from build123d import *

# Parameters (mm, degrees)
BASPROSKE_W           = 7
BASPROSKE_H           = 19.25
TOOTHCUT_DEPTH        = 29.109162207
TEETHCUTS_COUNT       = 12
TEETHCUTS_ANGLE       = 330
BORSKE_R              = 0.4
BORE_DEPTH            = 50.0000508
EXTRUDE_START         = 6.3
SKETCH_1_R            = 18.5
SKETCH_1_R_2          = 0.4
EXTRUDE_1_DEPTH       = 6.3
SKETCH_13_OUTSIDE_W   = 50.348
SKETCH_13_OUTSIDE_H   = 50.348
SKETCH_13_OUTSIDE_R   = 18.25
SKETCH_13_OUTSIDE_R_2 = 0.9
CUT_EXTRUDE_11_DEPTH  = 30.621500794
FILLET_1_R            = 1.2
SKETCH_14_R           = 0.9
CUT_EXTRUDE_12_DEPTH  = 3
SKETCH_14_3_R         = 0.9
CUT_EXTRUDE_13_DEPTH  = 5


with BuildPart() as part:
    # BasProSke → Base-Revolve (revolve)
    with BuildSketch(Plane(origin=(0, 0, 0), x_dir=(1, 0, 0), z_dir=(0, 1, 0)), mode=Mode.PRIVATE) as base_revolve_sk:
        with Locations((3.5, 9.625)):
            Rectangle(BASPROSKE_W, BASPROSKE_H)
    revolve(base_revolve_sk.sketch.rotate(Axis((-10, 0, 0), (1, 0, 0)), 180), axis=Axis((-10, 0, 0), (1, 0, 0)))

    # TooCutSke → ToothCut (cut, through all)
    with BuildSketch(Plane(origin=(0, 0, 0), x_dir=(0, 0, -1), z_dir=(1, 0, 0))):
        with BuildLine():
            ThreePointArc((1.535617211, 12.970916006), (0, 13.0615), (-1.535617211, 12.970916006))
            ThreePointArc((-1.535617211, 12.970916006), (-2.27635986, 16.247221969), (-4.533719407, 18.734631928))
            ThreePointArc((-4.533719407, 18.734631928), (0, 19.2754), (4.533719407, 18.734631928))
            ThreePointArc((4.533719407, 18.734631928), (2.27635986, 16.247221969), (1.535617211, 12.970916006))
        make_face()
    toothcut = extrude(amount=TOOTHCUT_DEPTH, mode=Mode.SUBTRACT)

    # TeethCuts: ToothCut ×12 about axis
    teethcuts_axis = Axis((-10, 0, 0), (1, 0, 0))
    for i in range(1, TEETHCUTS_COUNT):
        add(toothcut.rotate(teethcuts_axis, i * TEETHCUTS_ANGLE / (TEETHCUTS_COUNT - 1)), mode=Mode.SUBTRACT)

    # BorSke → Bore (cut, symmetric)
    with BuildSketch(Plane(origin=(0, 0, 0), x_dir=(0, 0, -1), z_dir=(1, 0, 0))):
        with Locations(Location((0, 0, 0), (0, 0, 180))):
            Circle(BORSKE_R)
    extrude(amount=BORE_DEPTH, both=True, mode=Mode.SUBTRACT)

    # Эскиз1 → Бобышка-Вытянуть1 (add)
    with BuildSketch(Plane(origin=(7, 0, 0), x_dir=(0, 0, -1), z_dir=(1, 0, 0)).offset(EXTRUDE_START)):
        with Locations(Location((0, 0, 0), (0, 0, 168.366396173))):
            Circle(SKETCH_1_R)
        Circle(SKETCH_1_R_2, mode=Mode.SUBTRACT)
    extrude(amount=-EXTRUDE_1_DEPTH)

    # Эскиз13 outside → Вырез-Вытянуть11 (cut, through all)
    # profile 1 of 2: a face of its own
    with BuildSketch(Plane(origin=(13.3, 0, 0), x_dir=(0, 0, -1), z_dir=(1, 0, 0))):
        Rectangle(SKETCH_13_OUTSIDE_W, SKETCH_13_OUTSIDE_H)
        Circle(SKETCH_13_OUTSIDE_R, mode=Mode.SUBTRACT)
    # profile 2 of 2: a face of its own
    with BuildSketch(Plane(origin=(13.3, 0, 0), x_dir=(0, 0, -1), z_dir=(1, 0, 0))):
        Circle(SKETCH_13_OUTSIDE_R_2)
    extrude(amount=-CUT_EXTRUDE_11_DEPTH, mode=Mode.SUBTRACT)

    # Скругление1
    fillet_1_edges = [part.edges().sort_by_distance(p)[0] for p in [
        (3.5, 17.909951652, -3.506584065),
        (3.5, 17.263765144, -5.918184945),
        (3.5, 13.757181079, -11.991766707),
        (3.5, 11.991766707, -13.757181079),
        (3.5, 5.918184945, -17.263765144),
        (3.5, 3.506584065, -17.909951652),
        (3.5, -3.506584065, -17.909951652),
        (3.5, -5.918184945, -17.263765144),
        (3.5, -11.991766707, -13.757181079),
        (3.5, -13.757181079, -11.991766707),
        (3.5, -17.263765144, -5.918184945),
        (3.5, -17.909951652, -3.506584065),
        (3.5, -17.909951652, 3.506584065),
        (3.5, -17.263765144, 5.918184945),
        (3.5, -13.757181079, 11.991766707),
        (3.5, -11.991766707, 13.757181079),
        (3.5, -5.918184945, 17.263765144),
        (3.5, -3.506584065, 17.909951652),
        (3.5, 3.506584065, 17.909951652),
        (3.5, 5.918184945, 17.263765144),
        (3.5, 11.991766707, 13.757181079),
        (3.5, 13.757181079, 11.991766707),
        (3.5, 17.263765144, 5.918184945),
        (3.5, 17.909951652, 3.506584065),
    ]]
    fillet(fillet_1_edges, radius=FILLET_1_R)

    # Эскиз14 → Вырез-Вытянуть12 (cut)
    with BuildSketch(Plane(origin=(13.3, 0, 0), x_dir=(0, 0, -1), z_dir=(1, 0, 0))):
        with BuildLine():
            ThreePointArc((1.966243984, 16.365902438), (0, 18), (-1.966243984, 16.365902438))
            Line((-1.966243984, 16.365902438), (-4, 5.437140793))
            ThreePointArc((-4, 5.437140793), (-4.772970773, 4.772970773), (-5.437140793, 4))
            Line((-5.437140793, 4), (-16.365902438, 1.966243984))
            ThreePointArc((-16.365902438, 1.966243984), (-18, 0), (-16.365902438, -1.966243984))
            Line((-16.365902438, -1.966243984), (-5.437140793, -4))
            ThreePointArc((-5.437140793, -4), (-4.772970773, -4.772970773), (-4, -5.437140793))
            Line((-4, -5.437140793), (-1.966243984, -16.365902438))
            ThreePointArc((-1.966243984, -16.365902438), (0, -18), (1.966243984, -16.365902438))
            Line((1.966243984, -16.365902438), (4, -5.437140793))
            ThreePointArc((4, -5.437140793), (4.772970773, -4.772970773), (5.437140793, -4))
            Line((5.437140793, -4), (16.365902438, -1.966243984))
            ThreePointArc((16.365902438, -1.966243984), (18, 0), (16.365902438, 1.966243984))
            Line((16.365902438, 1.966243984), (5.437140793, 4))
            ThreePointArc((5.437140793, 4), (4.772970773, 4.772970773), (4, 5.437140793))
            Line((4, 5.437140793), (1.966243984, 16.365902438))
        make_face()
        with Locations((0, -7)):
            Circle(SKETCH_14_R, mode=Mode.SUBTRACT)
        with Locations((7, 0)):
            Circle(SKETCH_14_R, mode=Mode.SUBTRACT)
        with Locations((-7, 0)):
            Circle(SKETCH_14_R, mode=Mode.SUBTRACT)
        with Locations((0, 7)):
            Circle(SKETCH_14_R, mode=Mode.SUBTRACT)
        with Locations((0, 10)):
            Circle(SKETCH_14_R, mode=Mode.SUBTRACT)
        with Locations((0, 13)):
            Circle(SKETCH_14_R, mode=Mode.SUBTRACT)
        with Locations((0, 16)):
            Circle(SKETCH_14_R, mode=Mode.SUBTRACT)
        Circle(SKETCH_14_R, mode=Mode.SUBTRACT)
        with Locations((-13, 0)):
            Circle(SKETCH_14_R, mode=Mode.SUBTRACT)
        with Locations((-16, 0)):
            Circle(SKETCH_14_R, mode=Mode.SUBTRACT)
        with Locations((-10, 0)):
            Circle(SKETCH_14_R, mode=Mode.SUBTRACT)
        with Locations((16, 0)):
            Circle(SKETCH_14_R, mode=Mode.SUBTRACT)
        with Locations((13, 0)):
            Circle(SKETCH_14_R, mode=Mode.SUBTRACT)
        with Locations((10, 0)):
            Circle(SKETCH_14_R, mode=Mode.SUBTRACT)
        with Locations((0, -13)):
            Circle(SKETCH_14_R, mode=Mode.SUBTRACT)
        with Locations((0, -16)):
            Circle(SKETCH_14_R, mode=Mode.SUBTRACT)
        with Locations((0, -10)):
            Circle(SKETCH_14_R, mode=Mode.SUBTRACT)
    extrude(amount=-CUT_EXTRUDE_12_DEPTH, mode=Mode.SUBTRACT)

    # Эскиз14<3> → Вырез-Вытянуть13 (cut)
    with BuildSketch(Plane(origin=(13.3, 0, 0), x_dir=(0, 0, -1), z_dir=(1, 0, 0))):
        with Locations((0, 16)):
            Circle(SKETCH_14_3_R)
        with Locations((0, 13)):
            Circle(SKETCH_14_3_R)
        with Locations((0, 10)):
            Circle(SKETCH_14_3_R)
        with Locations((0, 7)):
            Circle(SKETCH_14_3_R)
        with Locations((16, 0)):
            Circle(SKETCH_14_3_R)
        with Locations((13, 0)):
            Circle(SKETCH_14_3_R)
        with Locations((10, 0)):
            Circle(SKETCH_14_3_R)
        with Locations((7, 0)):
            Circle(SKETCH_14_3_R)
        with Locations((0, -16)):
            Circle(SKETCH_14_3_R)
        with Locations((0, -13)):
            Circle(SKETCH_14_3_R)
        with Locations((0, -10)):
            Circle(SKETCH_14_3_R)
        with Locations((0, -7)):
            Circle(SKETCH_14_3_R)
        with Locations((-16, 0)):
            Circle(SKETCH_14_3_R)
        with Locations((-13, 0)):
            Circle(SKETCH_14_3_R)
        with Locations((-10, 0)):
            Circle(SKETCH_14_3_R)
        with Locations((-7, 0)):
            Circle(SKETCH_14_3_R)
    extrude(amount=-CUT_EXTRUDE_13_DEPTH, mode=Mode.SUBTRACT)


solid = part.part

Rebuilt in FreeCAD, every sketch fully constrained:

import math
import FreeCAD as App
import Part
import Sketcher
from FreeCAD import Vector


def edges_at(feature, points):
    """Names of the edges that pass closest to the given points."""
    edges = feature.Shape.Edges
    near = lambda p: min(range(len(edges)), key=lambda i: edges[i].distToShape(Part.Vertex(*p))[0])
    return sorted({f"Edge{near(p) + 1}" for p in points})

doc = App.newDocument("Part")
params = doc.addObject("Spreadsheet::Sheet", "Params")
for row, (alias, value) in enumerate([
    ("sketch1_width", "7 mm"),
    ("sketch1_height", "19.25 mm"),
    ("revolution_angle", "360 deg"),
    ("sketch2_radius", "6.6 mm"),
    ("sketch3_diameter", "0.8 mm"),
    ("pocket2_length", "100.000102 mm"),
    ("sketch4_diameter", "37 mm"),
    ("sketch4_diameter2", "0.8 mm"),
    ("pad1_length", "6.3 mm"),
    ("sketch5_diameter", "36.5 mm"),
    ("sketch5_diameter2", "1.8 mm"),
    ("pocket3_length", "30.621501 mm"),
    ("fillet_radius", "1.2 mm"),
    ("sketch6_radius", "2 mm"),
    ("sketch6_diameter", "1.8 mm"),
    ("sketch6_radius2", "6.75 mm"),
    ("pocket4_length", "3 mm"),
    ("sketch7_diameter", "1.8 mm"),
    ("pocket5_length", "5 mm"),
], start=1):
    params.set(f"A{row}", alias)
    params.set(f"B{row}", "=" + value)
    params.setAlias(f"B{row}", alias)

body = doc.addObject("PartDesign::Body", "Body")

# Sketch on XZ plane
sketch1 = body.newObject("Sketcher::SketchObject", "Sketch")
sketch1.AttachmentSupport = (doc.getObject("XZ_Plane"), [""])
sketch1.MapMode = "FlatFace"
sketch1.addGeometry([
    Part.LineSegment(Vector(0, -19, 0), Vector(0, 0, 0)),
    Part.LineSegment(Vector(0, 0, 0), Vector(7, 0, 0)),
    Part.LineSegment(Vector(7, 0, 0), Vector(7, -19, 0)),
    Part.LineSegment(Vector(7, -19, 0), Vector(0, -19, 0)),
], False)
sketch1.addConstraint([
    Sketcher.Constraint("Coincident", 0, 2, 1, 1),
    Sketcher.Constraint("Coincident", 1, 2, 2, 1),
    Sketcher.Constraint("Coincident", 2, 2, 3, 1),
    Sketcher.Constraint("Coincident", 3, 2, 0, 1),
    Sketcher.Constraint("Vertical", 0),
    Sketcher.Constraint("Horizontal", 1),
    Sketcher.Constraint("Vertical", 2),
    Sketcher.Constraint("Horizontal", 3),
    Sketcher.Constraint("Coincident", 0, 2, -1, 1),
    Sketcher.Constraint("DistanceX", 1, 1, 1, 2, 7.0),
    Sketcher.Constraint("DistanceY", 0, 1, 0, 2, 19.25),
])
sketch1.setExpression("Constraints[9]", "Params.sketch1_width")
sketch1.setExpression("Constraints[10]", "Params.sketch1_height")
revolution = body.newObject("PartDesign::Revolution", "Revolution")
revolution.Profile = sketch1
revolution.ReferenceAxis = (sketch1, ["H_Axis"])
revolution.setExpression("Angle", "Params.revolution_angle")

# Sketch on YZ plane
sketch2 = body.newObject("Sketcher::SketchObject", "Sketch001")
sketch2.AttachmentSupport = (doc.getObject("YZ_Plane"), [""])
sketch2.MapMode = "FlatFace"
sketch2.addGeometry([
    Part.ArcOfCircle(Part.Circle(Vector(0, 0, 0), Vector(0, 0, 1), 13.1), math.radians(-6.75), math.radians(6.75)),
    Part.ArcOfCircle(Part.Circle(Vector(13.2, -8.1, 0), Vector(0, 0, 1), 6.6), math.radians(33), math.radians(92)),
    Part.ArcOfCircle(Part.Circle(Vector(0, 0, 0), Vector(0, 0, 1), 19.3), math.radians(-14), math.radians(14)),
    Part.ArcOfCircle(Part.Circle(Vector(13.2, 8.1, 0), Vector(0, 0, 1), 6.6), math.radians(-92), math.radians(-33)),
], False)
sketch2.addConstraint([
    Sketcher.Constraint("Coincident", 0, 1, 1, 2),
    Sketcher.Constraint("Coincident", 1, 1, 2, 1),
    Sketcher.Constraint("Coincident", 2, 2, 3, 2),
    Sketcher.Constraint("Coincident", 3, 1, 0, 2),
    Sketcher.Constraint("Coincident", 0, 3, -1, 1),
    Sketcher.Constraint("Coincident", 2, 3, -1, 1),
    Sketcher.Constraint("Equal", 1, 3),
    Sketcher.Constraint("Symmetric", 1, 3, 3, 3, -1),
    Sketcher.Constraint("Radius", 1, 6.6),
    Sketcher.Constraint("Radius", 0, 13.0615),
    Sketcher.Constraint("Radius", 2, 19.2754),
    Sketcher.Constraint("DistanceX", -1, 1, 1, 3, 13.201518),
    Sketcher.Constraint("DistanceX", -1, 1, 1, 1, 18.734632),
])
sketch2.setExpression("Constraints[8]", "Params.sketch2_radius")
pocket1 = body.newObject("PartDesign::Pocket", "Pocket")
pocket1.Profile = sketch2
pocket1.Type = "ThroughAll"
pocket1.Reversed = True
doc.recompute()

polarpattern = body.newObject("PartDesign::PolarPattern", "PolarPattern")
polarpattern.Originals = [pocket1]
polarpattern.Axis = (doc.getObject("X_Axis"), [""])
polarpattern.Angle = 360
polarpattern.Occurrences = 12
body.Tip = polarpattern

# Sketch on YZ plane
sketch3 = body.newObject("Sketcher::SketchObject", "Sketch002")
sketch3.AttachmentSupport = (doc.getObject("YZ_Plane"), [""])
sketch3.MapMode = "FlatFace"
sketch3.addGeometry(Part.Circle(Vector(0, 0, 0), Vector(0, 0, 1), 0.4), False)
sketch3.addConstraint([
    Sketcher.Constraint("Coincident", 0, 3, -1, 1),
    Sketcher.Constraint("Diameter", 0, 0.8),
])
sketch3.setExpression("Constraints[1]", "Params.sketch3_diameter")
pocket2 = body.newObject("PartDesign::Pocket", "Pocket001")
pocket2.Profile = sketch3
pocket2.setExpression("Length", "Params.pocket2_length")
pocket2.Midplane = True

# Sketch on YZ plane
sketch4 = body.newObject("Sketcher::SketchObject", "Sketch003")
sketch4.AttachmentSupport = (doc.getObject("YZ_Plane"), [""])
sketch4.MapMode = "FlatFace"
sketch4.AttachmentOffset = App.Placement(Vector(0, 0, 13.3), App.Rotation())
sketch4.addGeometry([
    Part.Circle(Vector(0, 0, 0), Vector(0, 0, 1), 18.5),
    Part.Circle(Vector(0, 0, 0), Vector(0, 0, 1), 0.4),
], False)
sketch4.addConstraint([
    Sketcher.Constraint("Coincident", 0, 3, -1, 1),
    Sketcher.Constraint("Coincident", 1, 3, -1, 1),
    Sketcher.Constraint("Diameter", 0, 37.0),
    Sketcher.Constraint("Diameter", 1, 0.8),
])
sketch4.setExpression("Constraints[2]", "Params.sketch4_diameter")
sketch4.setExpression("Constraints[3]", "Params.sketch4_diameter2")
pad1 = body.newObject("PartDesign::Pad", "Pad")
pad1.Profile = sketch4
pad1.setExpression("Length", "Params.pad1_length")
pad1.Reversed = True

# Sketch on YZ plane
sketch5 = body.newObject("Sketcher::SketchObject", "Sketch004")
sketch5.AttachmentSupport = (doc.getObject("YZ_Plane"), [""])
sketch5.MapMode = "FlatFace"
sketch5.AttachmentOffset = App.Placement(Vector(0, 0, 13.3), App.Rotation())
sketch5.addGeometry([
    Part.LineSegment(Vector(25.2, 25.2, 0), Vector(-25.2, 25.2, 0)),  # 0
    Part.LineSegment(Vector(-25.2, 25.2, 0), Vector(-25.2, -25.2, 0)),  # 1
    Part.LineSegment(Vector(-25.2, -25.2, 0), Vector(25.2, -25.2, 0)),  # 2
    Part.LineSegment(Vector(25.2, -25.2, 0), Vector(25.2, 25.2, 0)),  # 3
    Part.Circle(Vector(0, 0, 0), Vector(0, 0, 1), 18.2),  # 4
    Part.Circle(Vector(0, 0, 0), Vector(0, 0, 1), 0.9),  # 5
], False)
sketch5.addConstraint([
    Sketcher.Constraint("Coincident", 0, 2, 1, 1),
    Sketcher.Constraint("Coincident", 1, 2, 2, 1),
    Sketcher.Constraint("Coincident", 2, 2, 3, 1),
    Sketcher.Constraint("Coincident", 3, 2, 0, 1),
    Sketcher.Constraint("Horizontal", 0),
    Sketcher.Constraint("Vertical", 1),
    Sketcher.Constraint("Horizontal", 2),
    Sketcher.Constraint("Vertical", 3),
    Sketcher.Constraint("Coincident", 4, 3, -1, 1),
    Sketcher.Constraint("Coincident", 5, 3, -1, 1),
    Sketcher.Constraint("Symmetric", 0, 2, 2, 2, -1, 1),
    Sketcher.Constraint("Equal", 2, 1),
    Sketcher.Constraint("Diameter", 4, 36.5),
    Sketcher.Constraint("Diameter", 5, 1.8),
    Sketcher.Constraint("DistanceX", 0, 2, 0, 1, 50.348),
])
sketch5.setExpression("Constraints[12]", "Params.sketch5_diameter")
sketch5.setExpression("Constraints[13]", "Params.sketch5_diameter2")
pocket3 = body.newObject("PartDesign::Pocket", "Pocket002")
pocket3.Profile = sketch5
pocket3.setExpression("Length", "Params.pocket3_length")
doc.recompute()

fillet = body.newObject("PartDesign::Fillet", "Fillet")
fillet.Base = (pocket3, edges_at(pocket3, [
    (3.5, 17.91, -3.507),
    (3.5, 17.264, -5.918),
    (3.5, 13.757, -11.992),
    (3.5, 11.992, -13.757),
    (3.5, 5.918, -17.264),
    (3.5, 3.507, -17.91),
    (3.5, -3.507, -17.91),
    (3.5, -5.918, -17.264),
    (3.5, -11.992, -13.757),
    (3.5, -13.757, -11.992),
    (3.5, -17.264, -5.918),
    (3.5, -17.91, -3.507),
    (3.5, -17.91, 3.507),
    (3.5, -17.264, 5.918),
    (3.5, -13.757, 11.992),
    (3.5, -11.992, 13.757),
    (3.5, -5.918, 17.264),
    (3.5, -3.507, 17.91),
    (3.5, 3.507, 17.91),
    (3.5, 5.918, 17.264),
    (3.5, 11.992, 13.757),
    (3.5, 13.757, 11.992),
    (3.5, 17.264, 5.918),
    (3.5, 17.91, 3.507),
]))
fillet.setExpression("Radius", "Params.fillet_radius")

# Sketch on YZ plane
sketch6 = body.newObject("Sketcher::SketchObject", "Sketch005")
sketch6.AttachmentSupport = (doc.getObject("YZ_Plane"), [""])
sketch6.MapMode = "FlatFace"
sketch6.AttachmentOffset = App.Placement(Vector(0, 0, 13.3), App.Rotation())
sketch6.addGeometry([
    Part.ArcOfCircle(Part.Circle(Vector(16, 0, 0), Vector(0, 0, 1), 2), math.radians(-79), math.radians(79)),  # 0
    Part.LineSegment(Vector(16.4, 2, 0), Vector(5.4, 4, 0)),  # 1
    Part.ArcOfCircle(Part.Circle(Vector(0, 0, 0), Vector(0, 0, 1), 6.8), math.radians(36.34), math.radians(53.66)),  # 2
    Part.LineSegment(Vector(4, 5.4, 0), Vector(2, 16.4, 0)),  # 3
    Part.ArcOfCircle(Part.Circle(Vector(0, 16, 0), Vector(0, 0, 1), 2), math.radians(11), math.radians(169)),  # 4
    Part.LineSegment(Vector(-2, 16.4, 0), Vector(-4, 5.4, 0)),  # 5
    Part.ArcOfCircle(Part.Circle(Vector(0, 0, 0), Vector(0, 0, 1), 6.8), math.radians(126.34), math.radians(143.66)),  # 6
    Part.LineSegment(Vector(-5.4, 4, 0), Vector(-16.4, 2, 0)),  # 7
    Part.ArcOfCircle(Part.Circle(Vector(-16, 0, 0), Vector(0, 0, 1), 2), math.radians(101), math.radians(259)),  # 8
    Part.LineSegment(Vector(-16.4, -2, 0), Vector(-5.4, -4, 0)),  # 9
    Part.ArcOfCircle(Part.Circle(Vector(0, 0, 0), Vector(0, 0, 1), 6.8), math.radians(-143.66), math.radians(-126.34)),  # 10
    Part.LineSegment(Vector(-4, -5.4, 0), Vector(-2, -16.4, 0)),  # 11
    Part.ArcOfCircle(Part.Circle(Vector(0, -16, 0), Vector(0, 0, 1), 2), math.radians(-169), math.radians(-11)),  # 12
    Part.LineSegment(Vector(2, -16.4, 0), Vector(4, -5.4, 0)),  # 13
    Part.ArcOfCircle(Part.Circle(Vector(0, 0, 0), Vector(0, 0, 1), 6.8), math.radians(-53.66), math.radians(-36.34)),  # 14
    Part.LineSegment(Vector(5.4, -4, 0), Vector(16.4, -2, 0)),  # 15
    Part.Circle(Vector(-16, 0, 0), Vector(0, 0, 1), 0.9),  # 16
    Part.Circle(Vector(-13, 0, 0), Vector(0, 0, 1), 0.9),  # 17
    Part.Circle(Vector(-10, 0, 0), Vector(0, 0, 1), 0.9),  # 18
    Part.Circle(Vector(-7, 0, 0), Vector(0, 0, 1), 0.9),  # 19
    Part.Circle(Vector(0, 16, 0), Vector(0, 0, 1), 0.9),  # 20
    Part.Circle(Vector(0, 13, 0), Vector(0, 0, 1), 0.9),  # 21
    Part.Circle(Vector(0, 10, 0), Vector(0, 0, 1), 0.9),  # 22
    Part.Circle(Vector(0, 7, 0), Vector(0, 0, 1), 0.9),  # 23
    Part.Circle(Vector(0, 0, 0), Vector(0, 0, 1), 0.9),  # 24
    Part.Circle(Vector(0, -7, 0), Vector(0, 0, 1), 0.9),  # 25
    Part.Circle(Vector(7, 0, 0), Vector(0, 0, 1), 0.9),  # 26
    Part.Circle(Vector(0, -10, 0), Vector(0, 0, 1), 0.9),  # 27
    Part.Circle(Vector(0, -13, 0), Vector(0, 0, 1), 0.9),  # 28
    Part.Circle(Vector(0, -16, 0), Vector(0, 0, 1), 0.9),  # 29
    Part.Circle(Vector(10, 0, 0), Vector(0, 0, 1), 0.9),  # 30
    Part.Circle(Vector(13, 0, 0), Vector(0, 0, 1), 0.9),  # 31
    Part.Circle(Vector(16, 0, 0), Vector(0, 0, 1), 0.9),  # 32
], False)
sketch6.addConstraint([
    Sketcher.Constraint("Tangent", 0, 2, 1, 1),
    Sketcher.Constraint("Coincident", 1, 2, 2, 1),
    Sketcher.Constraint("Coincident", 2, 2, 3, 1),
    Sketcher.Constraint("Tangent", 3, 2, 4, 1),
    Sketcher.Constraint("Tangent", 4, 2, 5, 1),
    Sketcher.Constraint("Coincident", 5, 2, 6, 1),
    Sketcher.Constraint("Coincident", 6, 2, 7, 1),
    Sketcher.Constraint("Tangent", 7, 2, 8, 1),
    Sketcher.Constraint("Tangent", 8, 2, 9, 1),
    Sketcher.Constraint("Coincident", 9, 2, 10, 1),
    Sketcher.Constraint("Coincident", 10, 2, 11, 1),
    Sketcher.Constraint("Tangent", 11, 2, 12, 1),
    Sketcher.Constraint("Tangent", 12, 2, 13, 1),
    Sketcher.Constraint("Coincident", 13, 2, 14, 1),
    Sketcher.Constraint("Coincident", 14, 2, 15, 1),
    Sketcher.Constraint("Tangent", 15, 2, 0, 1),
    Sketcher.Constraint("Coincident", 2, 3, -1, 1),
    Sketcher.Constraint("Coincident", 6, 3, -1, 1),
    Sketcher.Constraint("Coincident", 10, 3, -1, 1),
    Sketcher.Constraint("Coincident", 14, 3, -1, 1),
    Sketcher.Constraint("Coincident", 24, 3, -1, 1),
    Sketcher.Constraint("Coincident", 16, 3, 8, 3),
    Sketcher.Constraint("Coincident", 20, 3, 4, 3),
    Sketcher.Constraint("Coincident", 29, 3, 12, 3),
    Sketcher.Constraint("Coincident", 32, 3, 0, 3),
    Sketcher.Constraint("Equal", 0, 4),
    Sketcher.Constraint("Equal", 2, 6),
    Sketcher.Constraint("Equal", 4, 8),
    Sketcher.Constraint("Equal", 6, 10),
    Sketcher.Constraint("Equal", 8, 12),
    Sketcher.Constraint("Equal", 10, 14),
    Sketcher.Constraint("Equal", 16, 17),
    Sketcher.Constraint("Equal", 17, 18),
    Sketcher.Constraint("Equal", 18, 19),
    Sketcher.Constraint("Equal", 19, 20),
    Sketcher.Constraint("Equal", 20, 21),
    Sketcher.Constraint("Equal", 21, 22),
    Sketcher.Constraint("Equal", 22, 23),
    Sketcher.Constraint("Equal", 23, 24),
    Sketcher.Constraint("Equal", 24, 25),
    Sketcher.Constraint("Equal", 25, 26),
    Sketcher.Constraint("Equal", 26, 27),
    Sketcher.Constraint("Equal", 27, 28),
    Sketcher.Constraint("Equal", 28, 29),
    Sketcher.Constraint("Equal", 29, 30),
    Sketcher.Constraint("Equal", 30, 31),
    Sketcher.Constraint("Equal", 31, 32),
    Sketcher.Constraint("Symmetric", 0, 3, 8, 3, -1, 1),
    Sketcher.Constraint("Symmetric", 4, 3, 12, 3, -1, 1),
    Sketcher.Constraint("Symmetric", 23, 3, 25, 3, -1, 1),
    Sketcher.Constraint("Symmetric", 19, 3, 26, 3, -1, 1),
    Sketcher.Constraint("Symmetric", 22, 3, 27, 3, -1, 1),
    Sketcher.Constraint("Symmetric", 21, 3, 28, 3, -1, 1),
    Sketcher.Constraint("Symmetric", 18, 3, 30, 3, -1, 1),
    Sketcher.Constraint("Symmetric", 17, 3, 31, 3, -1, 1),
    Sketcher.Constraint("Symmetric", 3, 2, 4, 2, -2),
    Sketcher.Constraint("Symmetric", 0, 2, 7, 2, -2),
    Sketcher.Constraint("PointOnObject", 17, 3, -1),
    Sketcher.Constraint("PointOnObject", 18, 3, -1),
    Sketcher.Constraint("PointOnObject", 19, 3, -1),
    Sketcher.Constraint("PointOnObject", 21, 3, -2),
    Sketcher.Constraint("PointOnObject", 22, 3, -2),
    Sketcher.Constraint("PointOnObject", 23, 3, -2),
    Sketcher.Constraint("Perpendicular", 1, 5),
    Sketcher.Constraint("Perpendicular", 5, 9),
    Sketcher.Constraint("Perpendicular", 7, 11),
    Sketcher.Constraint("Perpendicular", 9, 13),
    Sketcher.Constraint("Perpendicular", 11, 15),
    Sketcher.Constraint("Equal", 1, 3),
    Sketcher.Constraint("Radius", 0, 2.0),
    Sketcher.Constraint("Diameter", 16, 1.8),
    Sketcher.Constraint("Radius", 2, 6.75),
    Sketcher.Constraint("DistanceX", -1, 1, 0, 3, 16.0),
    Sketcher.Constraint("DistanceX", 17, 3, -1, 1, 13.0),
    Sketcher.Constraint("DistanceX", 18, 3, -1, 1, 10.0),
    Sketcher.Constraint("DistanceX", 19, 3, -1, 1, 7.0),
    Sketcher.Constraint("DistanceY", -1, 1, 21, 3, 13.0),
    Sketcher.Constraint("DistanceY", -1, 1, 22, 3, 10.0),
    Sketcher.Constraint("DistanceY", -1, 1, 23, 3, 7.0),
    Sketcher.Constraint("DistanceY", -1, 1, 1, 2, 4.0),
])
sketch6.setExpression("Constraints[69]", "Params.sketch6_radius")
sketch6.setExpression("Constraints[70]", "Params.sketch6_diameter")
sketch6.setExpression("Constraints[71]", "Params.sketch6_radius2")
pocket4 = body.newObject("PartDesign::Pocket", "Pocket003")
pocket4.Profile = sketch6
pocket4.setExpression("Length", "Params.pocket4_length")

# Sketch on YZ plane
sketch7 = body.newObject("Sketcher::SketchObject", "Sketch006")
sketch7.AttachmentSupport = (doc.getObject("YZ_Plane"), [""])
sketch7.MapMode = "FlatFace"
sketch7.AttachmentOffset = App.Placement(Vector(0, 0, 13.3), App.Rotation())
sketch7.addGeometry([
    Part.Circle(Vector(16, 0, 0), Vector(0, 0, 1), 0.9),  # 0
    Part.Circle(Vector(13, 0, 0), Vector(0, 0, 1), 0.9),  # 1
    Part.Circle(Vector(10, 0, 0), Vector(0, 0, 1), 0.9),  # 2
    Part.Circle(Vector(7, 0, 0), Vector(0, 0, 1), 0.9),  # 3
    Part.Circle(Vector(0, -16, 0), Vector(0, 0, 1), 0.9),  # 4
    Part.Circle(Vector(0, -13, 0), Vector(0, 0, 1), 0.9),  # 5
    Part.Circle(Vector(0, -10, 0), Vector(0, 0, 1), 0.9),  # 6
    Part.Circle(Vector(0, -7, 0), Vector(0, 0, 1), 0.9),  # 7
    Part.Circle(Vector(-16, 0, 0), Vector(0, 0, 1), 0.9),  # 8
    Part.Circle(Vector(-13, 0, 0), Vector(0, 0, 1), 0.9),  # 9
    Part.Circle(Vector(-10, 0, 0), Vector(0, 0, 1), 0.9),  # 10
    Part.Circle(Vector(-7, 0, 0), Vector(0, 0, 1), 0.9),  # 11
    Part.Circle(Vector(0, 16, 0), Vector(0, 0, 1), 0.9),  # 12
    Part.Circle(Vector(0, 13, 0), Vector(0, 0, 1), 0.9),  # 13
    Part.Circle(Vector(0, 10, 0), Vector(0, 0, 1), 0.9),  # 14
    Part.Circle(Vector(0, 7, 0), Vector(0, 0, 1), 0.9),  # 15
], False)
sketch7.addConstraint([
    Sketcher.Constraint("Equal", 0, 1),
    Sketcher.Constraint("Equal", 1, 2),
    Sketcher.Constraint("Equal", 2, 3),
    Sketcher.Constraint("Equal", 3, 4),
    Sketcher.Constraint("Equal", 4, 5),
    Sketcher.Constraint("Equal", 5, 6),
    Sketcher.Constraint("Equal", 6, 7),
    Sketcher.Constraint("Equal", 7, 8),
    Sketcher.Constraint("Equal", 8, 9),
    Sketcher.Constraint("Equal", 9, 10),
    Sketcher.Constraint("Equal", 10, 11),
    Sketcher.Constraint("Equal", 11, 12),
    Sketcher.Constraint("Equal", 12, 13),
    Sketcher.Constraint("Equal", 13, 14),
    Sketcher.Constraint("Equal", 14, 15),
    Sketcher.Constraint("Symmetric", 0, 3, 8, 3, -1, 1),
    Sketcher.Constraint("Symmetric", 1, 3, 9, 3, -1, 1),
    Sketcher.Constraint("Symmetric", 2, 3, 10, 3, -1, 1),
    Sketcher.Constraint("Symmetric", 3, 3, 11, 3, -1, 1),
    Sketcher.Constraint("Symmetric", 4, 3, 12, 3, -1, 1),
    Sketcher.Constraint("Symmetric", 5, 3, 13, 3, -1, 1),
    Sketcher.Constraint("Symmetric", 6, 3, 14, 3, -1, 1),
    Sketcher.Constraint("Symmetric", 7, 3, 15, 3, -1, 1),
    Sketcher.Constraint("PointOnObject", 0, 3, -1),
    Sketcher.Constraint("PointOnObject", 1, 3, -1),
    Sketcher.Constraint("PointOnObject", 2, 3, -1),
    Sketcher.Constraint("PointOnObject", 3, 3, -1),
    Sketcher.Constraint("PointOnObject", 4, 3, -2),
    Sketcher.Constraint("PointOnObject", 5, 3, -2),
    Sketcher.Constraint("PointOnObject", 6, 3, -2),
    Sketcher.Constraint("PointOnObject", 7, 3, -2),
    Sketcher.Constraint("Diameter", 0, 1.8),
    Sketcher.Constraint("DistanceX", -1, 1, 0, 3, 16.0),
    Sketcher.Constraint("DistanceX", -1, 1, 1, 3, 13.0),
    Sketcher.Constraint("DistanceX", -1, 1, 2, 3, 10.0),
    Sketcher.Constraint("DistanceX", -1, 1, 3, 3, 7.0),
    Sketcher.Constraint("DistanceY", 4, 3, -1, 1, 16.0),
    Sketcher.Constraint("DistanceY", 5, 3, -1, 1, 13.0),
    Sketcher.Constraint("DistanceY", 6, 3, -1, 1, 10.0),
    Sketcher.Constraint("DistanceY", 7, 3, -1, 1, 7.0),
])
sketch7.setExpression("Constraints[31]", "Params.sketch7_diameter")
pocket5 = body.newObject("PartDesign::Pocket", "Pocket004")
pocket5.Profile = sketch7
pocket5.setExpression("Length", "Params.pocket5_length")

doc.recompute()
